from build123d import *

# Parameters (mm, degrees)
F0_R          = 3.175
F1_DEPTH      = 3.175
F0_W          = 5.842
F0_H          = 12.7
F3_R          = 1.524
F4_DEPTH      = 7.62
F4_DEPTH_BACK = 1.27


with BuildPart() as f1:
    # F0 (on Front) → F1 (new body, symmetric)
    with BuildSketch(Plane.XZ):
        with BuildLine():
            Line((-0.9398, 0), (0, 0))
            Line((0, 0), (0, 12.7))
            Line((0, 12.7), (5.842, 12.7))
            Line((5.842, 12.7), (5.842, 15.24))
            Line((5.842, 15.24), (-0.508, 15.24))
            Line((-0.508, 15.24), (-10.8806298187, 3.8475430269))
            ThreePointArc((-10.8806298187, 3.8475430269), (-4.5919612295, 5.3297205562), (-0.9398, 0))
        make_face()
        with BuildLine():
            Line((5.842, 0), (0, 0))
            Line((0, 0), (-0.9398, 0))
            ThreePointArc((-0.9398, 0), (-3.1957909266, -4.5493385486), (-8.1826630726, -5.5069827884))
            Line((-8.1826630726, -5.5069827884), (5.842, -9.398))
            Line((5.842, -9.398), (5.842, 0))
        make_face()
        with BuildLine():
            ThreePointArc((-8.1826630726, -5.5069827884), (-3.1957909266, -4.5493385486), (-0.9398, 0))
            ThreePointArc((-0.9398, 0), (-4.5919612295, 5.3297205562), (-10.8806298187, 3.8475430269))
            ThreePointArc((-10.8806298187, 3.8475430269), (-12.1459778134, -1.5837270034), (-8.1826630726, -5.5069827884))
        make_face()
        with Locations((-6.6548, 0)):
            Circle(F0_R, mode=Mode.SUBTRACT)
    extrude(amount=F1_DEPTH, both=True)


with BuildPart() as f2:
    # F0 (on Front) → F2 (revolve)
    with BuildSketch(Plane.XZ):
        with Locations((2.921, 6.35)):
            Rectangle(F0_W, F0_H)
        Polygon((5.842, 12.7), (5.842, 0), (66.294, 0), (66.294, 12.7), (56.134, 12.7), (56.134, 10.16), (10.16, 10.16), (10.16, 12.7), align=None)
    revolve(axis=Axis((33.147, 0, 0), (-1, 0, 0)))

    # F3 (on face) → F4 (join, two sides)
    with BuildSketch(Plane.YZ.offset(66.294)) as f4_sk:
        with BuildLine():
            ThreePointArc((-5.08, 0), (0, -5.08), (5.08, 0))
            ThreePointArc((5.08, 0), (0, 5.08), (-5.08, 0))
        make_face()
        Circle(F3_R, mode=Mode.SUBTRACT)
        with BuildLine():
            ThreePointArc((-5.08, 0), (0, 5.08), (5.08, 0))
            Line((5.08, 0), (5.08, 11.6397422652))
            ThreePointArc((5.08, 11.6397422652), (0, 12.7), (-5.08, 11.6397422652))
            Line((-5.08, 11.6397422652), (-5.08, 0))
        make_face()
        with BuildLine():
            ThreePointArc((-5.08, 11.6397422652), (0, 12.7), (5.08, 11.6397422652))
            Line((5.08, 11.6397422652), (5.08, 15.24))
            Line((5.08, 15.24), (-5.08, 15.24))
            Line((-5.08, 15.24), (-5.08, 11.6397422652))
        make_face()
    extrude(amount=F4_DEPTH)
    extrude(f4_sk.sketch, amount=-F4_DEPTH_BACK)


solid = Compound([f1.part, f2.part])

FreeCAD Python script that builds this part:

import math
import FreeCAD as App
import Part
import Sketcher
Q = App.Units.Quantity


def add_polygon(sketch, points):
    """Adds a closed chain of lines whose ends are joined by coincident constraints."""
    first, n = sketch.GeometryCount, len(points)
    for a, b in zip(points, points[1:] + points[:1]):
        sketch.addGeometry(Part.LineSegment(App.Vector(*a, 0), App.Vector(*b, 0)), False)
    for i in range(n):
        sketch.addConstraint(Sketcher.Constraint("Coincident", first + i, 2, first + (i + 1) % n, 1))

doc = App.newDocument("Part")
body = doc.addObject("PartDesign::Body", "Body")

# Sketch on XZ plane
sketch1 = body.newObject("Sketcher::SketchObject", "Sketch")
sketch1.AttachmentSupport = (doc.getObject("XZ_Plane"), [""])
sketch1.MapMode = "FlatFace"
sketch1.addGeometry([
    Part.LineSegment(App.Vector(0, 0, 0), App.Vector(0, 12.7, 0)),  # 0
    Part.LineSegment(App.Vector(0, 12.7, 0), App.Vector(5.842, 12.7, 0)),  # 1
    Part.LineSegment(App.Vector(5.842, 12.7, 0), App.Vector(5.842, 15.24, 0)),  # 2
    Part.LineSegment(App.Vector(5.842, 15.24, 0), App.Vector(-0.508, 15.24, 0)),  # 3
    Part.LineSegment(App.Vector(-0.508, 15.24, 0), App.Vector(-10.88063, 3.847543, 0)),  # 4
    Part.ArcOfCircle(Part.Circle(App.Vector(-6.6548, 0, 0), App.Vector(0, 0, 1), 5.715), math.radians(137.682695), math.radians(254.493802)),  # 5
    Part.LineSegment(App.Vector(-8.182663, -5.506983, 0), App.Vector(5.842, -9.398, 0)),  # 6
    Part.LineSegment(App.Vector(5.842, -9.398, 0), App.Vector(5.842, 0, 0)),  # 7
    Part.LineSegment(App.Vector(5.842, 0, 0), App.Vector(0, 0, 0)),  # 8
    Part.Circle(App.Vector(-6.6548, 0, 0), App.Vector(0, 0, 1), 3.175),  # 9
], False)
sketch1.addConstraint([
    Sketcher.Constraint("Coincident", 0, 2, 1, 1),
    Sketcher.Constraint("Coincident", 1, 2, 2, 1),
    Sketcher.Constraint("Coincident", 2, 2, 3, 1),
    Sketcher.Constraint("Coincident", 3, 2, 4, 1),
    Sketcher.Constraint("Tangent", 4, 2, 5, 1),
    Sketcher.Constraint("Tangent", 5, 2, 6, 1),
    Sketcher.Constraint("Coincident", 6, 2, 7, 1),
    Sketcher.Constraint("Coincident", 7, 2, 8, 1),
    Sketcher.Constraint("Coincident", 8, 2, 0, 1),
    Sketcher.Constraint("Vertical", 0),
    Sketcher.Constraint("Horizontal", 1),
    Sketcher.Constraint("Vertical", 2),
    Sketcher.Constraint("Horizontal", 3),
    Sketcher.Constraint("Vertical", 7),
    Sketcher.Constraint("Horizontal", 8),
    Sketcher.Constraint("Coincident", 8, 2, -1, 1),
    Sketcher.Constraint("Coincident", 9, 3, 5, 3),
    Sketcher.Constraint("PointOnObject", 5, 3, -1),
    Sketcher.Constraint("Vertical", 2, 2, 6, 2),
    Sketcher.Constraint("Diameter", 9, Q("0.25 in")),
    Sketcher.Constraint("DistanceY", 0, 1, 0, 2, Q("0.5 in")),
    Sketcher.Constraint("DistanceY", 2, 1, 2, 2, Q("0.1 in")),
    Sketcher.Constraint("Radius", 5, Q("0.225 in")),
    Sketcher.Constraint("DistanceX", 1, 1, 1, 2, Q("0.23 in")),
    Sketcher.Constraint("DistanceX", 3, 2, 3, 1, Q("0.25 in")),
    Sketcher.Constraint("DistanceY", 7, 1, 7, 2, Q("0.37 in")),
    Sketcher.Constraint("DistanceX", 5, 3, -1, 1, Q("0.262 in")),
])
pad1 = body.newObject("PartDesign::Pad", "Pad")
pad1.Profile = sketch1
pad1.Length = Q("0.25 in")
pad1.Midplane = True
body2 = doc.addObject("PartDesign::Body", "Body001")

# Sketch on XZ plane
sketch2 = body2.newObject("Sketcher::SketchObject", "Sketch001")
sketch2.AttachmentSupport = (doc.getObject("XZ_Plane001"), [""])
sketch2.MapMode = "FlatFace"
add_polygon(sketch2, [(0, 12.7), (0, 0), (66.294, 0), (66.294, 12.7), (56.134, 12.7), (56.134, 10.16), (10.16, 10.16), (10.16, 12.7)])  # lines 0-7
sketch2.addConstraint([
    Sketcher.Constraint("Vertical", 0),
    Sketcher.Constraint("Horizontal", 1),
    Sketcher.Constraint("Vertical", 2),
    Sketcher.Constraint("Horizontal", 3),
    Sketcher.Constraint("Vertical", 4),
    Sketcher.Constraint("Horizontal", 5),
    Sketcher.Constraint("Vertical", 6),
    Sketcher.Constraint("Horizontal", 7),
    Sketcher.Constraint("Coincident", 0, 2, -1, 1),
    Sketcher.Constraint("Horizontal", 3, 2, 6, 2),
    Sketcher.Constraint("Equal", 3, 7),
    Sketcher.Constraint("DistanceX", 3, 2, 3, 1, Q("0.4 in")),
    Sketcher.Constraint("DistanceY", 0, 2, 0, 1, Q("0.5 in")),
    Sketcher.Constraint("DistanceY", 4, 2, 4, 1, Q("0.1 in")),
    Sketcher.Constraint("DistanceX", 1, 1, 1, 2, Q("2.61 in")),
])
revolution = body2.newObject("PartDesign::Revolution", "Revolution")
revolution.Profile = sketch2
revolution.ReferenceAxis = (sketch2, ["H_Axis"])
revolution.Angle = 360

# Sketch on YZ plane
sketch3 = body2.newObject("Sketcher::SketchObject", "Sketch002")
sketch3.AttachmentSupport = (doc.getObject("YZ_Plane001"), [""])
sketch3.MapMode = "FlatFace"
sketch3.AttachmentOffset = App.Placement(App.Vector(0, 0, 2.61 * 25.4), App.Rotation())
sketch3.addGeometry([
    Part.ArcOfCircle(Part.Circle(App.Vector(0, 0, 0), App.Vector(0, 0, 1), 5.08), math.radians(180), math.radians(360)),  # 0
    Part.LineSegment(App.Vector(5.08, 0, 0), App.Vector(5.08, 15.24, 0)),  # 1
    Part.LineSegment(App.Vector(5.08, 15.24, 0), App.Vector(-5.08, 15.24, 0)),  # 2
    Part.LineSegment(App.Vector(-5.08, 15.24, 0), App.Vector(-5.08, 0, 0)),  # 3
    Part.Circle(App.Vector(0, 0, 0), App.Vector(0, 0, 1), 1.524),  # 4
], False)
sketch3.addConstraint([
    Sketcher.Constraint("Tangent", 0, 2, 1, 1),
    Sketcher.Constraint("Coincident", 1, 2, 2, 1),
    Sketcher.Constraint("Coincident", 2, 2, 3, 1),
    Sketcher.Constraint("Tangent", 3, 2, 0, 1),
    Sketcher.Constraint("Vertical", 1),
    Sketcher.Constraint("Horizontal", 2),
    Sketcher.Constraint("Vertical", 3),
    Sketcher.Constraint("Coincident", 0, 3, -1, 1),
    Sketcher.Constraint("Coincident", 4, 3, -1, 1),
    Sketcher.Constraint("Radius", 0, Q("0.2 in")),
    Sketcher.Constraint("Diameter", 4, Q("0.12 in")),
    Sketcher.Constraint("DistanceY", 1, 1, 1, 2, Q("0.6 in")),
])
pad2 = body2.newObject("PartDesign::Pad", "Pad001")
pad2.Profile = sketch3
pad2.Type = "TwoLengths"
pad2.Length = Q("0.3 in")
pad2.Length2 = Q("0.05 in")

doc.recompute()
